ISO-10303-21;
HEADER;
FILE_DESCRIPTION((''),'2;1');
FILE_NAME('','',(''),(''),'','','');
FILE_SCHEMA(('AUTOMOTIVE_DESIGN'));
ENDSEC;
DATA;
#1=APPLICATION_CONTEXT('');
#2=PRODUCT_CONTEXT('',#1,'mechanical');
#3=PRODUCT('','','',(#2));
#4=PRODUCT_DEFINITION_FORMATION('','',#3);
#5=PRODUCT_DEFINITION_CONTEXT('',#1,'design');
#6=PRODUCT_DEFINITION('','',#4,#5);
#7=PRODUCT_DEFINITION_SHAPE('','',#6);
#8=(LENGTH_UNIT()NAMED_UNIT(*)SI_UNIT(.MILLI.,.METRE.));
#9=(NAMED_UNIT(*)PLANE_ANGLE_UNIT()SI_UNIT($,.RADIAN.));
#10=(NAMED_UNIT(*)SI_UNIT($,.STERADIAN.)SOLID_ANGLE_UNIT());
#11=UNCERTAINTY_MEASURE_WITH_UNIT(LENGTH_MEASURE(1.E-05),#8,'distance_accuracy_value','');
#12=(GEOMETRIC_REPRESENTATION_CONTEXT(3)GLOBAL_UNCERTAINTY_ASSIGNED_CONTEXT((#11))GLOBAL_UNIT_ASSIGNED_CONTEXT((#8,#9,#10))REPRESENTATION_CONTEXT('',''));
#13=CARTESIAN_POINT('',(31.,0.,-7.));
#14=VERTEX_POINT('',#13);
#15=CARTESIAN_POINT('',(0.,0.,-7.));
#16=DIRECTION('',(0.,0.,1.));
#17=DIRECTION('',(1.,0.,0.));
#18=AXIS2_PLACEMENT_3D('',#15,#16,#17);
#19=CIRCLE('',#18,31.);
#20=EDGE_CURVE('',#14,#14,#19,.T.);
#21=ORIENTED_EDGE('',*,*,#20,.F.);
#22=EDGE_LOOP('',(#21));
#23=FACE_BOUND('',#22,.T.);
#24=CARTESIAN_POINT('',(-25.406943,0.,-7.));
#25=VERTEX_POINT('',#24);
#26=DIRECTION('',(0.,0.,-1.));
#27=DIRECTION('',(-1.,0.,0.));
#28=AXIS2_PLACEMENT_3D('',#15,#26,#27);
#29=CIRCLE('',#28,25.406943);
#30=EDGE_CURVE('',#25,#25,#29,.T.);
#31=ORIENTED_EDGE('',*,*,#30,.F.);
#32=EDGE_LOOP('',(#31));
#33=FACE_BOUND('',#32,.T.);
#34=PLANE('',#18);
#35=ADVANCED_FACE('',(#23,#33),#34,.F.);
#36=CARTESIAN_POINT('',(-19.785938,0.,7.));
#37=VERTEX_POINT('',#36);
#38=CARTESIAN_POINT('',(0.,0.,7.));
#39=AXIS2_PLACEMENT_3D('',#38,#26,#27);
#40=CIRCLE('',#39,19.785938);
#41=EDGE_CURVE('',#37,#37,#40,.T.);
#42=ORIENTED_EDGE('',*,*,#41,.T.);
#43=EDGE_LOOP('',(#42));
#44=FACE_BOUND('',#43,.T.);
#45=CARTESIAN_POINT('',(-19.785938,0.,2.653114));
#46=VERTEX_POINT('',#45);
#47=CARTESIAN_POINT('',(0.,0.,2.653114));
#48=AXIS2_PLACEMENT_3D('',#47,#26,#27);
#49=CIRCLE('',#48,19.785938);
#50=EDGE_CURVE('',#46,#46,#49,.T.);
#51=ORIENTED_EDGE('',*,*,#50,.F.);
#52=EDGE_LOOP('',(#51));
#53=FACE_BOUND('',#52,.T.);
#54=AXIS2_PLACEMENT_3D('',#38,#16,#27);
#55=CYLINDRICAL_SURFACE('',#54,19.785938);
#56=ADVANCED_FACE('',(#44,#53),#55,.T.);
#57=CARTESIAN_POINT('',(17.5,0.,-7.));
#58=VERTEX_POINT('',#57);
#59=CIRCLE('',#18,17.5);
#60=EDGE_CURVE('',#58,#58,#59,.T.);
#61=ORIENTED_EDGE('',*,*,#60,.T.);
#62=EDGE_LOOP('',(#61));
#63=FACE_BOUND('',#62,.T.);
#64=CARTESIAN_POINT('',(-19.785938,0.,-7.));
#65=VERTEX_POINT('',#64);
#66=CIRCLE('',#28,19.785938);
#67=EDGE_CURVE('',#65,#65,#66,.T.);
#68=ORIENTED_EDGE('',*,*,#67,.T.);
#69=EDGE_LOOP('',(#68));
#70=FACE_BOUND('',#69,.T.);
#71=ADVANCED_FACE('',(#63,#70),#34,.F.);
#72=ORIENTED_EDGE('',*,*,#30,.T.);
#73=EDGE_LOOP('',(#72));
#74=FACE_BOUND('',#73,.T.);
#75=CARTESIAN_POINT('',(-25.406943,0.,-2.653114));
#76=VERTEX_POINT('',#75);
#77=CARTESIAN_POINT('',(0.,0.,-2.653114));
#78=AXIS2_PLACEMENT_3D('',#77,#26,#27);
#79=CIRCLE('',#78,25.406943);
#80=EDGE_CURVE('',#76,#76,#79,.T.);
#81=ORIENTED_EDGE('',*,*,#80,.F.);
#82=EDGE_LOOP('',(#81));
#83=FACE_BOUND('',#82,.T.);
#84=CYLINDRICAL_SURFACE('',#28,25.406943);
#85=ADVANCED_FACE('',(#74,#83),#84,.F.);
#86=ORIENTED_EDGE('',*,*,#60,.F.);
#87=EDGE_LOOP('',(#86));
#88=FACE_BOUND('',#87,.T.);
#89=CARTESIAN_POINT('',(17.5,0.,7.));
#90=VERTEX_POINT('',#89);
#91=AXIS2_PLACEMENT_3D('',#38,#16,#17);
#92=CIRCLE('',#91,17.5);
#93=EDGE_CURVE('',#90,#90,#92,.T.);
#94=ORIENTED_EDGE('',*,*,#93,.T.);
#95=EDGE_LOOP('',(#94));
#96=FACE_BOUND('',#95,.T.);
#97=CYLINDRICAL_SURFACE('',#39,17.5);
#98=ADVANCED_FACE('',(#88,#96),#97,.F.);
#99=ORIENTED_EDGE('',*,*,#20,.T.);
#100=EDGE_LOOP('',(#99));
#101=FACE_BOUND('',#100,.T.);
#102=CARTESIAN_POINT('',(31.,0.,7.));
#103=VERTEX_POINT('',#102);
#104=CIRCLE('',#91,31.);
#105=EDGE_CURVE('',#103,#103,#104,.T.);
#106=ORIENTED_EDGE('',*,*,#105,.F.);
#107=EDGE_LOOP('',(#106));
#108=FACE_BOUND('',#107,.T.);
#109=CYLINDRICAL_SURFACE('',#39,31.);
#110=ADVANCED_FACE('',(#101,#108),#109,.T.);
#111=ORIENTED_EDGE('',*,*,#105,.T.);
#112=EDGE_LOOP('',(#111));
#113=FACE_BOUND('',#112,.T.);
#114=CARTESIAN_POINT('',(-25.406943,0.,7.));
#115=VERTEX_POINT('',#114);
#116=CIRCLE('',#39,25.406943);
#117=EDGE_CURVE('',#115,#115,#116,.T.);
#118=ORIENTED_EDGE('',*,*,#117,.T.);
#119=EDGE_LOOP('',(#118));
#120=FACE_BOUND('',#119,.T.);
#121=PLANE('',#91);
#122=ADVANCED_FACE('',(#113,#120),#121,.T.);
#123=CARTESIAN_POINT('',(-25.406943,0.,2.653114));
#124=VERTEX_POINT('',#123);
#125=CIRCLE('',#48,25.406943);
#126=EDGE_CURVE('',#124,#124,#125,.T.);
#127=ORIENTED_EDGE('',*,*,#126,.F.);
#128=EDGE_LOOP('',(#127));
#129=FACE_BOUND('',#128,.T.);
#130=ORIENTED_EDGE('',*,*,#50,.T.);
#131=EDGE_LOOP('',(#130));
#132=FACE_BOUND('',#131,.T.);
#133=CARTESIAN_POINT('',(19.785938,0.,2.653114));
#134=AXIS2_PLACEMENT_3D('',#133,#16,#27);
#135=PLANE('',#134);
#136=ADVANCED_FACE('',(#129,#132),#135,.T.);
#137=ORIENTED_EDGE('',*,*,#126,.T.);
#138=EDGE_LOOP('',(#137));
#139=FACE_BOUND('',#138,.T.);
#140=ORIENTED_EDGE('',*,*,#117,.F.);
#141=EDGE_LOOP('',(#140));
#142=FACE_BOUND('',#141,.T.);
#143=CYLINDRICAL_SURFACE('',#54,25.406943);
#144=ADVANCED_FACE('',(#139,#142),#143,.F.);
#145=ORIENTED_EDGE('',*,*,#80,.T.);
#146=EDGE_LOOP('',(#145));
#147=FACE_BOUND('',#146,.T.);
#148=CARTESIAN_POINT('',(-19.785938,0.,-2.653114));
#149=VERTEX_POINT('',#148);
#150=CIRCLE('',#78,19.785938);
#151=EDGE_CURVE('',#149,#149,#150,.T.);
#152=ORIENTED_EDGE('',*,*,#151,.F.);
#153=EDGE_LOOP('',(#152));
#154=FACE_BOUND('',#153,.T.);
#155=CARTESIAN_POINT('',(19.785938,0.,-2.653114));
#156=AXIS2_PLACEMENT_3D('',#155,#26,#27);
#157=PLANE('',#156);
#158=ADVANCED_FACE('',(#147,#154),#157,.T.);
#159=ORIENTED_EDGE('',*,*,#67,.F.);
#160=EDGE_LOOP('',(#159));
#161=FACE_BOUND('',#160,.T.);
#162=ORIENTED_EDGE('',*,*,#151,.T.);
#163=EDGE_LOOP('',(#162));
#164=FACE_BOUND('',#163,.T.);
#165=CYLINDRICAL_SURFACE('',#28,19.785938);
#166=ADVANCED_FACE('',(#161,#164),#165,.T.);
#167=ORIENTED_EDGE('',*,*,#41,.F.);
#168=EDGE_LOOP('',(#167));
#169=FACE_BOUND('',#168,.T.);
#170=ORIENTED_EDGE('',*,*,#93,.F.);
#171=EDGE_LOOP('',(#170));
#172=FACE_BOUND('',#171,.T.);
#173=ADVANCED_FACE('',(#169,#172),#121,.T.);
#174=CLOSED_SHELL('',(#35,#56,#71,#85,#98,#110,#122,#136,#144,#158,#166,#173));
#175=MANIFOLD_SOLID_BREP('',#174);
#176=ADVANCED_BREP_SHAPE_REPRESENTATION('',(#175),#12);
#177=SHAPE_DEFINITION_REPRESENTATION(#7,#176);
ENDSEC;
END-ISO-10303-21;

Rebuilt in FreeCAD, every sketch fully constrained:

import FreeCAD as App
import Part
import Sketcher
Q = App.Units.Quantity


def add_polygon(sketch, points):
    """Adds a closed chain of lines whose ends are joined by coincident constraints."""
    first, n = sketch.GeometryCount, len(points)
    for a, b in zip(points, points[1:] + points[:1]):
        sketch.addGeometry(Part.LineSegment(App.Vector(*a, 0), App.Vector(*b, 0)), False)
    for i in range(n):
        sketch.addConstraint(Sketcher.Constraint("Coincident", first + i, 2, first + (i + 1) % n, 1))

doc = App.newDocument("Part")
body = doc.addObject("PartDesign::Body", "Body")

# Sketch on XY plane
sketch1 = body.newObject("Sketcher::SketchObject", "Sketch")
sketch1.AttachmentSupport = (doc.getObject("XY_Plane"), [""])
sketch1.MapMode = "FlatFace"
sketch1.addGeometry(Part.Circle(App.Vector(0, 0, 0), App.Vector(0, 0, 1), 31), False)
sketch1.addGeometry(Part.Circle(App.Vector(0, 0, 0), App.Vector(0, 0, 1), 18), False)
sketch1.addConstraint(Sketcher.Constraint("Coincident", 0, 3, -1, 1))
sketch1.addConstraint(Sketcher.Constraint("Coincident", 1, 3, -1, 1))
sketch1.addConstraint(Sketcher.Constraint("Diameter", 0, Q("62 mm")))
sketch1.addConstraint(Sketcher.Constraint("Diameter", 1, Q("35 mm")))
pad1 = body.newObject("PartDesign::Pad", "Pad")
pad1.Profile = sketch1
pad1.Length = 14
pad1.Midplane = True

# Sketch on XZ plane
sketch2 = body.newObject("Sketcher::SketchObject", "Sketch001")
sketch2.AttachmentSupport = (doc.getObject("XZ_Plane"), [""])
sketch2.MapMode = "FlatFace"
add_polygon(sketch2, [(19.8, -7), (19.8, -2.7), (25.4, -2.7), (25.4, -7)])  # lines 0-3
sketch2.addConstraint(Sketcher.Constraint("Vertical", 0))
sketch2.addConstraint(Sketcher.Constraint("Horizontal", 1))
sketch2.addConstraint(Sketcher.Constraint("Vertical", 2))
sketch2.addConstraint(Sketcher.Constraint("Horizontal", 3))
sketch2.addConstraint(Sketcher.Constraint("DistanceY", 2, 2, -1, 1, Q("7 mm")))
sketch2.addConstraint(Sketcher.Constraint("DistanceX", 1, 1, 1, 2, Q("5.621005 mm")))
sketch2.addConstraint(Sketcher.Constraint("DistanceY", 0, 1, 0, 2, Q("4.346886 mm")))
sketch2.addConstraint(Sketcher.Constraint("DistanceX", -1, 1, 0, 2, Q("19.785938 mm")))
groove = body.newObject("PartDesign::Groove", "Groove")
groove.Profile = sketch2
groove.ReferenceAxis = (sketch2, ["V_Axis"])
groove.Angle = 360
doc.recompute()

mirrored = body.newObject("PartDesign::Mirrored", "Mirrored")
mirrored.Originals = [groove]
mirrored.MirrorPlane = (doc.getObject("XY_Plane"), [""])
body.Tip = mirrored

doc.recompute()
